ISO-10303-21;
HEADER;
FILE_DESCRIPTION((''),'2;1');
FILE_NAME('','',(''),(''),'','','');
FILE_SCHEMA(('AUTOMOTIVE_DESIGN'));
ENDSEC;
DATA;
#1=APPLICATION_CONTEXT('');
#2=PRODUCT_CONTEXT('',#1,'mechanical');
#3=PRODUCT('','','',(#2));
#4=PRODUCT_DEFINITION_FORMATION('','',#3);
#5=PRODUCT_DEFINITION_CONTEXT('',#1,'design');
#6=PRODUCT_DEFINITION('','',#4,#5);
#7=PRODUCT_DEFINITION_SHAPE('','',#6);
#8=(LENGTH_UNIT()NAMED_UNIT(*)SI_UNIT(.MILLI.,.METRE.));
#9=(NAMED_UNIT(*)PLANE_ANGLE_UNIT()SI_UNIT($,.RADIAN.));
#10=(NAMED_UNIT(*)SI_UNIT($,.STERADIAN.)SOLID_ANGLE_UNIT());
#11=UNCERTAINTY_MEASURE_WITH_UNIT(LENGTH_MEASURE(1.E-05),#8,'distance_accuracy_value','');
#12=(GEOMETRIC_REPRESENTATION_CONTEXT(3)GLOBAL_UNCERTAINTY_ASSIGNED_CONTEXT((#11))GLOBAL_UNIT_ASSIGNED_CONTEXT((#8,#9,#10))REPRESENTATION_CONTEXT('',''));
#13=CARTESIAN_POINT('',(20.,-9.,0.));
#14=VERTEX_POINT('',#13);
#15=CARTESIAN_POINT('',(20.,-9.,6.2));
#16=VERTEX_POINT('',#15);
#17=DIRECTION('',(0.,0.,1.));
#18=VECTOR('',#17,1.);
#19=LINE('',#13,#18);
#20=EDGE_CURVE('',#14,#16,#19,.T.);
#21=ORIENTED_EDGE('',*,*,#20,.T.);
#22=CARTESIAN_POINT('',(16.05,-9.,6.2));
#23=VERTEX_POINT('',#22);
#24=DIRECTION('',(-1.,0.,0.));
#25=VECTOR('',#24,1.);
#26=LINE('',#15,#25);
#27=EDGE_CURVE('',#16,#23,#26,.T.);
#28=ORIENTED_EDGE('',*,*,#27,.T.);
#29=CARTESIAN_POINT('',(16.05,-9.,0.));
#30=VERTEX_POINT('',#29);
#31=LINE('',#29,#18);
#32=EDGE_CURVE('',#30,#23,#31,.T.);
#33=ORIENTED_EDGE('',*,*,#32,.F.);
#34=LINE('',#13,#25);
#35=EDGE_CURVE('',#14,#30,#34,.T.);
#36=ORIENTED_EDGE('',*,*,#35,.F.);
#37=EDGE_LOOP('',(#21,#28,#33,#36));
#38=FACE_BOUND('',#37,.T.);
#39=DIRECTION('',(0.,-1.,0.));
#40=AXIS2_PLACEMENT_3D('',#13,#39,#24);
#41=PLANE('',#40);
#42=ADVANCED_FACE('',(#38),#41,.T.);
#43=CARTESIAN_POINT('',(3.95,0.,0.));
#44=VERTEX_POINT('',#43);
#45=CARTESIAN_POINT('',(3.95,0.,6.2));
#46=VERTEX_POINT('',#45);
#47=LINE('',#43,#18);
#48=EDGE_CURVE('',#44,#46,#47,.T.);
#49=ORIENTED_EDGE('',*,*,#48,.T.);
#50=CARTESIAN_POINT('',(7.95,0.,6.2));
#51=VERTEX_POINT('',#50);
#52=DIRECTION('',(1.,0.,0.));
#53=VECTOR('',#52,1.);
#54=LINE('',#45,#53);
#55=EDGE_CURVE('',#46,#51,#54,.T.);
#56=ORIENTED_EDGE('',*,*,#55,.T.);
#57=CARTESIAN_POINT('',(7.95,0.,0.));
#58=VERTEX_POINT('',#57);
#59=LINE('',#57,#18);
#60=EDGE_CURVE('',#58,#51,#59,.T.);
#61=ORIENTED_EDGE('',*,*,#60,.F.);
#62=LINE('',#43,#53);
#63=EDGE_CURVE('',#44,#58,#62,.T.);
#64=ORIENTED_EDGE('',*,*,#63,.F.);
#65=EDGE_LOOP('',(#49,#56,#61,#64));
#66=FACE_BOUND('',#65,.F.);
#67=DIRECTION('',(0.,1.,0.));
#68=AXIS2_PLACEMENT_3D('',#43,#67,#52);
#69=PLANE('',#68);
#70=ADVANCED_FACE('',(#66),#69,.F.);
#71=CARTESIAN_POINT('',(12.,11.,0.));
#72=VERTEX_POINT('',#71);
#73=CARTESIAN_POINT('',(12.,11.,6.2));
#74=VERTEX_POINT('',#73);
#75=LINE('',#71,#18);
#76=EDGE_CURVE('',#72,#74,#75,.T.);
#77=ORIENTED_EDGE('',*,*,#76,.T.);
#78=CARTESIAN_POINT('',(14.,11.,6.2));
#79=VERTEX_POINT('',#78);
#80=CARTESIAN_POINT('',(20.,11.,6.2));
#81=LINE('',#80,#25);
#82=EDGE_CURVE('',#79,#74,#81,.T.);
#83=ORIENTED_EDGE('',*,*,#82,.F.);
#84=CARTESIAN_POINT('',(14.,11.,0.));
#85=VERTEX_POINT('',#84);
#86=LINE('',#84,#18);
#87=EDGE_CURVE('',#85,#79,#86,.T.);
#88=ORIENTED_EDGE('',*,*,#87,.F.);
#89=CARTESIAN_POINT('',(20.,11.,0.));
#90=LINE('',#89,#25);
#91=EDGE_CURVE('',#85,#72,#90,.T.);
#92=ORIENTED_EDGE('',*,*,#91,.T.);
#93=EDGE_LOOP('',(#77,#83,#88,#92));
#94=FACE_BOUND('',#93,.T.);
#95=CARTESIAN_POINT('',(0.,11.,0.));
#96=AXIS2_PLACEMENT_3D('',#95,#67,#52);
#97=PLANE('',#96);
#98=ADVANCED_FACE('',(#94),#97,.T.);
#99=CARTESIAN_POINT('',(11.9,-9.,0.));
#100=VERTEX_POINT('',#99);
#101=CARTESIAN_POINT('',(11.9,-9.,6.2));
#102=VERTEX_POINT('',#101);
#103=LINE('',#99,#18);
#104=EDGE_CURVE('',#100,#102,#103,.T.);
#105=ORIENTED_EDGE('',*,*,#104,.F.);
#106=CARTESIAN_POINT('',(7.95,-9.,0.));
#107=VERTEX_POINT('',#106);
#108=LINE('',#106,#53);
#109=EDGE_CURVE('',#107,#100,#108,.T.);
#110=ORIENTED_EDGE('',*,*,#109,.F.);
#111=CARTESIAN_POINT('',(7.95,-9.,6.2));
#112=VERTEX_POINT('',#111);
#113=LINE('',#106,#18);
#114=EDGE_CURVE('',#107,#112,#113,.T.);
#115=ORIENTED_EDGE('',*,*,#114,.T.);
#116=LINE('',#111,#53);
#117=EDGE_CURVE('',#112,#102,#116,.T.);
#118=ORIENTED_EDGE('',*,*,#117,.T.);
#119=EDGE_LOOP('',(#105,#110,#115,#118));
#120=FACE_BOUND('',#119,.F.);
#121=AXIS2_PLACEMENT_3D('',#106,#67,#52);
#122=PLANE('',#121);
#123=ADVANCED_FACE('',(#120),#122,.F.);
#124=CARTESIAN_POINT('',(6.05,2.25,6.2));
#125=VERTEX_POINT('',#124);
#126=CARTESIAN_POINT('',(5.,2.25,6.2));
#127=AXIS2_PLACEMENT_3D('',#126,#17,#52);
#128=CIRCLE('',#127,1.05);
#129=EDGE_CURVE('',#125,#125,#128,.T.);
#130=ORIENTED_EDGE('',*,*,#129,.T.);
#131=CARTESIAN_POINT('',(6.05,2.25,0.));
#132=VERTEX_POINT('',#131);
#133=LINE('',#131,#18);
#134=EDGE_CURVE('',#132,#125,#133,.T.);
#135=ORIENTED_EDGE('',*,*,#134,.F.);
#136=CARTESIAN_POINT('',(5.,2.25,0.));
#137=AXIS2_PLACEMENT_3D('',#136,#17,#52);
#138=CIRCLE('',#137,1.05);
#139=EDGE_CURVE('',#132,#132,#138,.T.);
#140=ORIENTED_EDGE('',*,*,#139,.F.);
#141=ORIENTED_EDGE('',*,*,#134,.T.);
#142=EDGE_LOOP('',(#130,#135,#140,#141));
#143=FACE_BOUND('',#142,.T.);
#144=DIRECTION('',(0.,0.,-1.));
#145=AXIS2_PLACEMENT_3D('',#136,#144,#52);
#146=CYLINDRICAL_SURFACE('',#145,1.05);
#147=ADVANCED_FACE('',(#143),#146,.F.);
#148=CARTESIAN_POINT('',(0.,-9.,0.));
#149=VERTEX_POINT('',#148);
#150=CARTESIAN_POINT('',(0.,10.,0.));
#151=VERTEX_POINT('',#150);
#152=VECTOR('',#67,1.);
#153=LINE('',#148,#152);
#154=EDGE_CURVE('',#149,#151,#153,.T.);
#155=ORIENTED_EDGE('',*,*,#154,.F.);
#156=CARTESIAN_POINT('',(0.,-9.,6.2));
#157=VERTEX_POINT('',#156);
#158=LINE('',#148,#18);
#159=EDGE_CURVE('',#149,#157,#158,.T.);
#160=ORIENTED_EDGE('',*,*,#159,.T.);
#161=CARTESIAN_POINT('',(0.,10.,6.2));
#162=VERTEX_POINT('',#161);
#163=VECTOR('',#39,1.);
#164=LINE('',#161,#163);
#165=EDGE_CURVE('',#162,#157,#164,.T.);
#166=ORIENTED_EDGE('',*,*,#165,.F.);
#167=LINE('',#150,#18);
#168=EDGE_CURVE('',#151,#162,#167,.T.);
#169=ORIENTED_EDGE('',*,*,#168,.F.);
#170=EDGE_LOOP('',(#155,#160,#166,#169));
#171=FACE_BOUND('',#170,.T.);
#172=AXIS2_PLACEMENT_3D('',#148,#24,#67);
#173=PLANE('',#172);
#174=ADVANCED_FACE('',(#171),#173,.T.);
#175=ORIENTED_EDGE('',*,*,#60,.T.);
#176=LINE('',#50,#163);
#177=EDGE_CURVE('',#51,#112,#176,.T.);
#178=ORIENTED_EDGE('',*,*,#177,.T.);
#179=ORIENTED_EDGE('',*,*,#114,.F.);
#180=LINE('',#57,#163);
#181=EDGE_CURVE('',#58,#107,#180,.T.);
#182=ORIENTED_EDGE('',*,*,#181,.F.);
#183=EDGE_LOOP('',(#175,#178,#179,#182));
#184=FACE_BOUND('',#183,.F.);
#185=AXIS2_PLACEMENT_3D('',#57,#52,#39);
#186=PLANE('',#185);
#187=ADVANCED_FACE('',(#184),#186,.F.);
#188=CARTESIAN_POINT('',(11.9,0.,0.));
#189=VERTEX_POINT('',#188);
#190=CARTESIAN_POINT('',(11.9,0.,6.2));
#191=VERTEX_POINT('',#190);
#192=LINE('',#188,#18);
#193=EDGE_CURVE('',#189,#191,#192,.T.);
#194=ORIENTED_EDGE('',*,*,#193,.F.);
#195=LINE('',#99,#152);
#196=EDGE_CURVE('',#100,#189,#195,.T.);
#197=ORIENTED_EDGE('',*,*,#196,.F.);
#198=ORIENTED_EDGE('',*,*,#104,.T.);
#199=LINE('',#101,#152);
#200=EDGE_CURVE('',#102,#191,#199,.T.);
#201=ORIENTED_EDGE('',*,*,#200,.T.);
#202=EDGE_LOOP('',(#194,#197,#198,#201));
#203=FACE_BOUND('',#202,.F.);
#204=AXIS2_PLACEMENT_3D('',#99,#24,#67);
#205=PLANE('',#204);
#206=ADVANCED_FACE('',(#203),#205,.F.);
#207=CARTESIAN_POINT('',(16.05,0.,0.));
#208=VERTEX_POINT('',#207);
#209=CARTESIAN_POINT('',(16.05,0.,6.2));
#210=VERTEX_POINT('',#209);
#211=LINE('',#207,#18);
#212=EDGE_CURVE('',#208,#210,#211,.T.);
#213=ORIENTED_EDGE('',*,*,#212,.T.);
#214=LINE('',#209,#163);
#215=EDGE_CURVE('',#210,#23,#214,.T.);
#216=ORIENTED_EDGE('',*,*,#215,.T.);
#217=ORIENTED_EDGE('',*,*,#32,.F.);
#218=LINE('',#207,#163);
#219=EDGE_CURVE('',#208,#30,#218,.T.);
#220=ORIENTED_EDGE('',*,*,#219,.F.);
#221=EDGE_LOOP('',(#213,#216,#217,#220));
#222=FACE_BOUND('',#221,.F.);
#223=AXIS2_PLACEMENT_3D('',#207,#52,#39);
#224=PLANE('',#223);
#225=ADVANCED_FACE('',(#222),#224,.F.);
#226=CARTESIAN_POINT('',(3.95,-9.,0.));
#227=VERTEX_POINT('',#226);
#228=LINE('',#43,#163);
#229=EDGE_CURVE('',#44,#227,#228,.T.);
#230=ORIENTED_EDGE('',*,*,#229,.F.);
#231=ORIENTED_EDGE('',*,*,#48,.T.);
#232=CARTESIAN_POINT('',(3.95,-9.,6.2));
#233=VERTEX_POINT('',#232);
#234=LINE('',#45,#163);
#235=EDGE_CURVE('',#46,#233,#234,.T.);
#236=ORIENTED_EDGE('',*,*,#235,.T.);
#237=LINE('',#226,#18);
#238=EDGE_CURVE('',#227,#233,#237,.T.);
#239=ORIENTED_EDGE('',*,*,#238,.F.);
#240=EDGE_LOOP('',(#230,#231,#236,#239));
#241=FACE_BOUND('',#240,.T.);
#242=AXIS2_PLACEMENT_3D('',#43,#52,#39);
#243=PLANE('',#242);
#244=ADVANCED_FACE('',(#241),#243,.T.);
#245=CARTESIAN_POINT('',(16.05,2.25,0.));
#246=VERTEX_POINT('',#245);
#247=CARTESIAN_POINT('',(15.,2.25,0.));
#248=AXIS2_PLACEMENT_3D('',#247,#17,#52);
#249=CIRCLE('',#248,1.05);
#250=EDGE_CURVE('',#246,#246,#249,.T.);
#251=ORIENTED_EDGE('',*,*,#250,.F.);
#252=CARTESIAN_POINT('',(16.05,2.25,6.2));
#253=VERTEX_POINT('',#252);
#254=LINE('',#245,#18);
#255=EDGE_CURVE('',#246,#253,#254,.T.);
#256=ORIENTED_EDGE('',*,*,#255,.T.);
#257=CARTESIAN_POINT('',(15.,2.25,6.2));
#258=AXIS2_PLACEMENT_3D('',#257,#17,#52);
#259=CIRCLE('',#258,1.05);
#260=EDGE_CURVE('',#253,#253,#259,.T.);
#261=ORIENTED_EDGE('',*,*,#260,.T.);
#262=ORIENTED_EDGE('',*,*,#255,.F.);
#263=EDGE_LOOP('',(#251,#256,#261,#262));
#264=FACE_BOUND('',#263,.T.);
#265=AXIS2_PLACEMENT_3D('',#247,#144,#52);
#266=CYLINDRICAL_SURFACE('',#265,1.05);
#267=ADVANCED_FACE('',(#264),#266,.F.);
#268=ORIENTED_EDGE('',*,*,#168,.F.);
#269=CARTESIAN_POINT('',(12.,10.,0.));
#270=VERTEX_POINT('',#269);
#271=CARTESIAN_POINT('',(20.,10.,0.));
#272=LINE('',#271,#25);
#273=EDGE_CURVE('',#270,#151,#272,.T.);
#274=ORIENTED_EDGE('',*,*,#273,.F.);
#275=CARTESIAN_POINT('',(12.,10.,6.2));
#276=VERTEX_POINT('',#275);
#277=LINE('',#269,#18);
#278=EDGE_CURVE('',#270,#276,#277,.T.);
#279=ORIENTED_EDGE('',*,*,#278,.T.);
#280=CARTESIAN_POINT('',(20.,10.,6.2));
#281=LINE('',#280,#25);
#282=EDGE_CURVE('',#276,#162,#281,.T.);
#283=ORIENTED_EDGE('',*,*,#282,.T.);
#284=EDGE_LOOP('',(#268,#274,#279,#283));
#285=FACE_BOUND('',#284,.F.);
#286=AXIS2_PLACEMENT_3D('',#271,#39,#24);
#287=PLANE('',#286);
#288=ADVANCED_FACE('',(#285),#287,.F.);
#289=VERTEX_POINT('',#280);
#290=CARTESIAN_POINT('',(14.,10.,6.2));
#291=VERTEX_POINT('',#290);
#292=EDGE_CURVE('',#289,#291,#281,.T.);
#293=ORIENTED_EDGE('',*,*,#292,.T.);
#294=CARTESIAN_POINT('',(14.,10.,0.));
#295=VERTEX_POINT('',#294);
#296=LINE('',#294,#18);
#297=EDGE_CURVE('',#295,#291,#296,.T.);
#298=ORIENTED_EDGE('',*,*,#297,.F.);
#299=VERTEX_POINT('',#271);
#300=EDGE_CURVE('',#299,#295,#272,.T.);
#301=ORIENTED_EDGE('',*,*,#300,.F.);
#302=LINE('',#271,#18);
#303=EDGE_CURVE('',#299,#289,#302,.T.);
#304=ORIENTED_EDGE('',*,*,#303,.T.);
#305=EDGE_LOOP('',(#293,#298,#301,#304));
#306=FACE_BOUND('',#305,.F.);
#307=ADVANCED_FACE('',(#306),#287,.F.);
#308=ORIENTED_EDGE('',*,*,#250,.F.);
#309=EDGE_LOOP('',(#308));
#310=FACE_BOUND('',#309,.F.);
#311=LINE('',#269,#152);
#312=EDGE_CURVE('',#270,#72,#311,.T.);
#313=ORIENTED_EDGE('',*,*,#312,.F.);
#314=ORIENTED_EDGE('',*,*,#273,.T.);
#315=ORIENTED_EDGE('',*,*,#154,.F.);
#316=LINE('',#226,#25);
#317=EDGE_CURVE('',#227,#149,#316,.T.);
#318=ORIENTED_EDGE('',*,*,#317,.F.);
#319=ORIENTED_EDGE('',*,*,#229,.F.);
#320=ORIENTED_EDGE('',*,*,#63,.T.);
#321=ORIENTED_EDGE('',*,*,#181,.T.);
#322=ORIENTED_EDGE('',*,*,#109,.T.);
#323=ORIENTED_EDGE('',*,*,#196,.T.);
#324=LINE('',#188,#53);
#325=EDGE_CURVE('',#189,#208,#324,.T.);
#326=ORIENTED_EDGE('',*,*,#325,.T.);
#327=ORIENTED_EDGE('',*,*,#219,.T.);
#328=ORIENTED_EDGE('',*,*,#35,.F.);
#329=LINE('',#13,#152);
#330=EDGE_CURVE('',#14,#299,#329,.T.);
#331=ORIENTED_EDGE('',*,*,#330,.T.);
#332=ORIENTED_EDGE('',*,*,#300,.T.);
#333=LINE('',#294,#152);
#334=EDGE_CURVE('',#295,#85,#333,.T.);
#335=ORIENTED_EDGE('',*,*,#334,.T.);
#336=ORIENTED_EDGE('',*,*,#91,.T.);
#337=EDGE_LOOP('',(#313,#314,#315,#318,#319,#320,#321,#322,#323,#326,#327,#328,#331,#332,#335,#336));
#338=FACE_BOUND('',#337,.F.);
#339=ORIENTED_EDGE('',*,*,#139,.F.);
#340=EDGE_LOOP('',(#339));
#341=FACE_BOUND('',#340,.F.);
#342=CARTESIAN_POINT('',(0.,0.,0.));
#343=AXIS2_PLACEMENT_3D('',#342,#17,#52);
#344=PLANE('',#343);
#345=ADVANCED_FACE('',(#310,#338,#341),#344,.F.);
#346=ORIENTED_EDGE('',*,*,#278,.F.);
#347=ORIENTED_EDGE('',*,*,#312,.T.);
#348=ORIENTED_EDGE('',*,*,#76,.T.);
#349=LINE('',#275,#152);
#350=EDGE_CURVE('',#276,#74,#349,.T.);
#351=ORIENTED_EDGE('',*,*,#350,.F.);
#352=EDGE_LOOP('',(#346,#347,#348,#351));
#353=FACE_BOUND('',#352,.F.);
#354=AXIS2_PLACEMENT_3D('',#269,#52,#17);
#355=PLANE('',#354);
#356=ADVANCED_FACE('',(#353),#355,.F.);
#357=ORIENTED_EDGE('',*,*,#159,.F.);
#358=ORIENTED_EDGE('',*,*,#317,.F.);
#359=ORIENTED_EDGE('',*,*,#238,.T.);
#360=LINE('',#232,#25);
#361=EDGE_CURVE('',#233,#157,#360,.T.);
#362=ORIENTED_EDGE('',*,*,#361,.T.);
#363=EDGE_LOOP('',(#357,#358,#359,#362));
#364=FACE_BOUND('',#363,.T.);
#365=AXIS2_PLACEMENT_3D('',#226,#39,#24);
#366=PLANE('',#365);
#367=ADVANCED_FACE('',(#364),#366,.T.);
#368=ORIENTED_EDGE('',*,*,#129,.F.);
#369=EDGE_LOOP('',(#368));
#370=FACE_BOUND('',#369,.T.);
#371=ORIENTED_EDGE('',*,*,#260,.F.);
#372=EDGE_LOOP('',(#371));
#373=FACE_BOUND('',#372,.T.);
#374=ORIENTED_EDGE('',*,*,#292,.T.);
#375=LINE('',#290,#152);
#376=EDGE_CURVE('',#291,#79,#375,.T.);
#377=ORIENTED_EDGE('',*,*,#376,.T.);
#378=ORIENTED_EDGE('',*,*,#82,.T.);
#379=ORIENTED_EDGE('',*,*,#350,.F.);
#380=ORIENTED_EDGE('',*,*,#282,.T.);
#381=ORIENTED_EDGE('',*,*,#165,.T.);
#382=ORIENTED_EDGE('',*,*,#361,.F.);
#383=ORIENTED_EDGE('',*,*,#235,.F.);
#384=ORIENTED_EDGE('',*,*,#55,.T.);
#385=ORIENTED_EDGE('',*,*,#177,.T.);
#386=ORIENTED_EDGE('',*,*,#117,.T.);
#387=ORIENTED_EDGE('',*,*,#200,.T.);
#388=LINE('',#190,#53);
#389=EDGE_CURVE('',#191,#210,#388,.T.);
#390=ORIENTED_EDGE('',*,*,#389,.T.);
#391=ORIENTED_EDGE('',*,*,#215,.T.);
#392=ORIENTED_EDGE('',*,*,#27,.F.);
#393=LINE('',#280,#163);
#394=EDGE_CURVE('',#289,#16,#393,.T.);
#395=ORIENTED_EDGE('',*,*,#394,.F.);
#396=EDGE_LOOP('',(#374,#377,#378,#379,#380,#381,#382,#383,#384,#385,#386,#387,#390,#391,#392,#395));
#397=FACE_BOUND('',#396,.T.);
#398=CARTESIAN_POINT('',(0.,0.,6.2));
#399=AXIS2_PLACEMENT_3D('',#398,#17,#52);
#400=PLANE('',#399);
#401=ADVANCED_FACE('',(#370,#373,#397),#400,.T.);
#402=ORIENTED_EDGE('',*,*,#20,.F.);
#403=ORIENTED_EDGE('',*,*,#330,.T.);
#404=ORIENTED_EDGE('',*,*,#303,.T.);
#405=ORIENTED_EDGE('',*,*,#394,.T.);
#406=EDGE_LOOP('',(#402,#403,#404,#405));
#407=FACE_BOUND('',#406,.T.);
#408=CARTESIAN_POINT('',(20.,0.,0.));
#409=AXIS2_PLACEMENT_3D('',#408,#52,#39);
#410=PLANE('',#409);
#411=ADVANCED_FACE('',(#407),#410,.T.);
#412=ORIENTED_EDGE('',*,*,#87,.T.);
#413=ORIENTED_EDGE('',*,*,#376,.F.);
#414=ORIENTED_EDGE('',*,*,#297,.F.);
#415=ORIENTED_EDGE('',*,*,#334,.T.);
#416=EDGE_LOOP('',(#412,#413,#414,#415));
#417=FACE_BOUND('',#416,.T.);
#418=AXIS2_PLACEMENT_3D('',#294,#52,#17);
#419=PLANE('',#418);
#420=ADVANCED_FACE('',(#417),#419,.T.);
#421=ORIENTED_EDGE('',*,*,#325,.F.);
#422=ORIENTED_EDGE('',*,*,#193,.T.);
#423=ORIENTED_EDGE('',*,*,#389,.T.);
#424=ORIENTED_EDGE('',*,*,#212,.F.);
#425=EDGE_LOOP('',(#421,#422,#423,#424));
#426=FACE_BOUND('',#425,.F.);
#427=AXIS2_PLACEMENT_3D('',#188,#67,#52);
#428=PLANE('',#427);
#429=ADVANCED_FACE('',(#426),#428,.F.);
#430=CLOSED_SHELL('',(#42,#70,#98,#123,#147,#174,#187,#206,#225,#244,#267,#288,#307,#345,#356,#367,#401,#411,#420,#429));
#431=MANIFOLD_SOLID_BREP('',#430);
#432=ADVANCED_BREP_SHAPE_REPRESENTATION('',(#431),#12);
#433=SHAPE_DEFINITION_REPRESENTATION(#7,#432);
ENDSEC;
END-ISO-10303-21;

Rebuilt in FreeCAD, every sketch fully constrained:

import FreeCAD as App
import Part
import Sketcher

V = App.Vector

doc = App.newDocument("Part")
body = doc.addObject("PartDesign::Body", "Body")

sketch1 = body.newObject("Sketcher::SketchObject", "Sketch")
sketch1.AttachmentSupport = (doc.getObject("XY_Plane"), [""])
sketch1.MapMode = "FlatFace"
sketch1.addGeometry([
    Part.LineSegment(V(20, -9, 0), V(20, 10, 0)),
    Part.LineSegment(V(20, 10, 0), V(0, 10, 0)),
    Part.LineSegment(V(0, 10, 0), V(0, -9, 0)),
    Part.LineSegment(V(0, -9, 0), V(4, -9, 0)),
    Part.LineSegment(V(4, -9, 0), V(4, 0, 0)),
    Part.LineSegment(V(4, 0, 0), V(8, 0, 0)),
    Part.LineSegment(V(8, 0, 0), V(8, -9, 0)),
    Part.LineSegment(V(8, -9, 0), V(11.9, -9, 0)),
    Part.LineSegment(V(11.9, -9, 0), V(11.9, 0, 0)),
    Part.LineSegment(V(11.9, 0, 0), V(16.1, 0, 0)),
    Part.LineSegment(V(16.1, 0, 0), V(16.1, -9, 0)),
    Part.LineSegment(V(16.1, -9, 0), V(20, -9, 0)),
    Part.Circle(V(5, 2.2, 0), V(0, 0, 1), 1.1),
    Part.Circle(V(15, 2.2, 0), V(0, 0, 1), 1.1),
], False)
sketch1.addConstraint([
    Sketcher.Constraint("Coincident", 0, 2, 1, 1),
    Sketcher.Constraint("Coincident", 1, 2, 2, 1),
    Sketcher.Constraint("Coincident", 2, 2, 3, 1),
    Sketcher.Constraint("Coincident", 3, 2, 4, 1),
    Sketcher.Constraint("Coincident", 4, 2, 5, 1),
    Sketcher.Constraint("Coincident", 5, 2, 6, 1),
    Sketcher.Constraint("Coincident", 6, 2, 7, 1),
    Sketcher.Constraint("Coincident", 7, 2, 8, 1),
    Sketcher.Constraint("Coincident", 8, 2, 9, 1),
    Sketcher.Constraint("Coincident", 9, 2, 10, 1),
    Sketcher.Constraint("Coincident", 10, 2, 11, 1),
    Sketcher.Constraint("Coincident", 11, 2, 0, 1),
    Sketcher.Constraint("Vertical", 0),
    Sketcher.Constraint("Horizontal", 1),
    Sketcher.Constraint("Vertical", 2),
    Sketcher.Constraint("Horizontal", 3),
    Sketcher.Constraint("Vertical", 4),
    Sketcher.Constraint("Horizontal", 5),
    Sketcher.Constraint("Vertical", 6),
    Sketcher.Constraint("Horizontal", 7),
    Sketcher.Constraint("Vertical", 8),
    Sketcher.Constraint("Horizontal", 9),
    Sketcher.Constraint("Vertical", 10),
    Sketcher.Constraint("Horizontal", 11),
    Sketcher.Constraint("Equal", 12, 13),
    Sketcher.Constraint("PointOnObject", 1, 2, -2),
    Sketcher.Constraint("PointOnObject", 4, 2, -1),
    Sketcher.Constraint("PointOnObject", 8, 2, -1),
    Sketcher.Constraint("Horizontal", 12, 3, 13, 3),
    Sketcher.Constraint("Horizontal", 3, 2, 6, 2),
    Sketcher.Constraint("Horizontal", 7, 2, 10, 2),
    Sketcher.Constraint("Equal", 3, 7),
    Sketcher.Constraint("Equal", 7, 11),
    Sketcher.Constraint("Diameter", 12, 2.1),
    Sketcher.Constraint("DistanceX", 1, 2, 1, 1, 20.0),
    Sketcher.Constraint("DistanceX", 5, 1, 5, 2, 4.0),
    Sketcher.Constraint("DistanceY", 4, 1, 4, 2, 9.0),
    Sketcher.Constraint("DistanceX", -1, 1, 12, 3, 5.0),
    Sketcher.Constraint("DistanceY", -1, 1, 0, 2, 10.0),
    Sketcher.Constraint("DistanceX", 12, 3, 13, 3, 10.0),
    Sketcher.Constraint("DistanceX", 3, 1, 3, 2, 3.95),
    Sketcher.Constraint("DistanceY", -1, 1, 12, 3, 2.25),
])
pad1 = body.newObject("PartDesign::Pad", "Pad")
pad1.Profile = sketch1
pad1.Length = 6.2

sketch2 = body.newObject("Sketcher::SketchObject", "Sketch001")
sketch2.AttachmentSupport = (doc.getObject("XZ_Plane"), [""])
sketch2.MapMode = "FlatFace"
sketch2.AttachmentOffset = App.Placement(V(0, 0, -10), App.Rotation())
sketch2.addGeometry([
    Part.LineSegment(V(14, 6.2, 0), V(14, 0, 0)),
    Part.LineSegment(V(14, 0, 0), V(12, 0, 0)),
    Part.LineSegment(V(12, 0, 0), V(12, 6.2, 0)),
    Part.LineSegment(V(12, 6.2, 0), V(14, 6.2, 0)),
], False)
sketch2.addConstraint([
    Sketcher.Constraint("Coincident", 0, 2, 1, 1),
    Sketcher.Constraint("Coincident", 1, 2, 2, 1),
    Sketcher.Constraint("Coincident", 2, 2, 3, 1),
    Sketcher.Constraint("Coincident", 3, 2, 0, 1),
    Sketcher.Constraint("Vertical", 0),
    Sketcher.Constraint("Horizontal", 1),
    Sketcher.Constraint("Vertical", 2),
    Sketcher.Constraint("Horizontal", 3),
    Sketcher.Constraint("PointOnObject", 0, 2, -1),
    Sketcher.Constraint("DistanceX", 1, 2, 1, 1, 2.0),
    Sketcher.Constraint("DistanceY", 0, 2, 0, 1, 6.2),
    Sketcher.Constraint("DistanceX", -1, 1, 0, 2, 14.0),
])
pad2 = body.newObject("PartDesign::Pad", "Pad001")
pad2.Profile = sketch2
pad2.Length = 1
pad2.Reversed = True

doc.recompute()
